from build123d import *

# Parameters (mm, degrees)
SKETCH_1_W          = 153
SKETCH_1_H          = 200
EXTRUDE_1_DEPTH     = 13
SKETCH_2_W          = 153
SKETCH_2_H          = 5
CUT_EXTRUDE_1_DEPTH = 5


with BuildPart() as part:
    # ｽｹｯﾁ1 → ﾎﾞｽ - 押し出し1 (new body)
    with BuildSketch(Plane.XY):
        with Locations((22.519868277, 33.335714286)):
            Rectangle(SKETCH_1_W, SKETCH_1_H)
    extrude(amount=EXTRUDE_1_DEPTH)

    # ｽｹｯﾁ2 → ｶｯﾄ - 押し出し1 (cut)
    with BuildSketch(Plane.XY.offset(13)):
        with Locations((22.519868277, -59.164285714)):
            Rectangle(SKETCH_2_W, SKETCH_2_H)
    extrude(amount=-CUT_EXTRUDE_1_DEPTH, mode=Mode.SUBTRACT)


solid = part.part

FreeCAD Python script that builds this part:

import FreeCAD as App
import Part
import Sketcher


def add_polygon(sketch, points):
    """Adds a closed chain of lines whose ends are joined by coincident constraints."""
    first, n = sketch.GeometryCount, len(points)
    for a, b in zip(points, points[1:] + points[:1]):
        sketch.addGeometry(Part.LineSegment(App.Vector(*a, 0), App.Vector(*b, 0)), False)
    for i in range(n):
        sketch.addConstraint(Sketcher.Constraint("Coincident", first + i, 2, first + (i + 1) % n, 1))

doc = App.newDocument("Part")
body = doc.addObject("PartDesign::Body", "Body")

# Sketch on XY plane
sketch1 = body.newObject("Sketcher::SketchObject", "Sketch")
sketch1.AttachmentSupport = (doc.getObject("XY_Plane"), [""])
sketch1.MapMode = "FlatFace"
add_polygon(sketch1, [(-54, 133), (-54, -67), (99, -67), (99, 133)])  # lines 0-3
sketch1.addConstraint(Sketcher.Constraint("Vertical", 0))
sketch1.addConstraint(Sketcher.Constraint("Horizontal", 1))
sketch1.addConstraint(Sketcher.Constraint("Vertical", 2))
sketch1.addConstraint(Sketcher.Constraint("Horizontal", 3))
sketch1.addConstraint(Sketcher.Constraint("DistanceX", 1, 1, 1, 2, 153.0))
sketch1.addConstraint(Sketcher.Constraint("DistanceY", 0, 2, 0, 1, 200.0))
sketch1.addConstraint(Sketcher.Constraint("DistanceX", 0, 2, -1, 1, 53.980132))
sketch1.addConstraint(Sketcher.Constraint("DistanceY", 0, 2, -1, 1, 66.664286))
pad1 = body.newObject("PartDesign::Pad", "Pad")
pad1.Profile = sketch1
pad1.Length = 13

# Sketch on XY plane
sketch2 = body.newObject("Sketcher::SketchObject", "Sketch001")
sketch2.AttachmentSupport = (doc.getObject("XY_Plane"), [""])
sketch2.MapMode = "FlatFace"
sketch2.AttachmentOffset = App.Placement(App.Vector(0, 0, 13), App.Rotation())
add_polygon(sketch2, [(-54, -57), (-54, -62), (99, -62), (99, -57)])  # lines 0-3
sketch2.addConstraint(Sketcher.Constraint("Vertical", 0))
sketch2.addConstraint(Sketcher.Constraint("Horizontal", 1))
sketch2.addConstraint(Sketcher.Constraint("Vertical", 2))
sketch2.addConstraint(Sketcher.Constraint("Horizontal", 3))
sketch2.addConstraint(Sketcher.Constraint("DistanceX", 1, 1, 1, 2, 153.0))
sketch2.addConstraint(Sketcher.Constraint("DistanceY", 0, 2, 0, 1, 5.0))
sketch2.addConstraint(Sketcher.Constraint("DistanceX", 0, 2, -1, 1, 53.980132))
sketch2.addConstraint(Sketcher.Constraint("DistanceY", 0, 2, -1, 1, 61.664286))
pocket1 = body.newObject("PartDesign::Pocket", "Pocket")
pocket1.Profile = sketch2
pocket1.Length = 5

doc.recompute()
